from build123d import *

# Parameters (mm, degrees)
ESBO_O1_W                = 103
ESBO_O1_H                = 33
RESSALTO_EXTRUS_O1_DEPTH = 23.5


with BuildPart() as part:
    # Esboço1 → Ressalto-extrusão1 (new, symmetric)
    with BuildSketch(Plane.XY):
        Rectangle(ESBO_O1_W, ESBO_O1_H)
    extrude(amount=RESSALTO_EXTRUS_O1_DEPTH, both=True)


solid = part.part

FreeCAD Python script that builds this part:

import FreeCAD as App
import Part
import Sketcher

V = App.Vector
Q = App.Units.Quantity


def add_polygon(sketch, points):
    """Adds a closed chain of lines whose ends are joined by coincident constraints."""
    first, n = sketch.GeometryCount, len(points)
    for a, b in zip(points, points[1:] + points[:1]):
        sketch.addGeometry(Part.LineSegment(App.Vector(*a, 0), App.Vector(*b, 0)), False)
    for i in range(n):
        sketch.addConstraint(Sketcher.Constraint("Coincident", first + i, 2, first + (i + 1) % n, 1))

doc = App.newDocument("Part")
params = doc.addObject("Spreadsheet::Sheet", "Params")
for row, (alias, value) in enumerate([
    ("sketch1_width", "103 mm"),
    ("sketch1_height", "33 mm"),
    ("pad1_length", "47 mm"),
], start=1):
    params.set(f"A{row}", alias)
    params.set(f"B{row}", "=" + value)
    params.setAlias(f"B{row}", alias)

body = doc.addObject("PartDesign::Body", "Body")

# Sketch on XY plane
sketch1 = body.newObject("Sketcher::SketchObject", "Sketch")
sketch1.AttachmentSupport = (doc.getObject("XY_Plane"), [""])
sketch1.MapMode = "FlatFace"
add_polygon(sketch1, [(-51.5, 16.5), (-51.5, -16.5), (51.5, -16.5), (51.5, 16.5)])  # lines 0-3
sketch1.addConstraint(Sketcher.Constraint("Vertical", 0))
sketch1.addConstraint(Sketcher.Constraint("Horizontal", 1))
sketch1.addConstraint(Sketcher.Constraint("Vertical", 2))
sketch1.addConstraint(Sketcher.Constraint("Horizontal", 3))
sketch1.addConstraint(Sketcher.Constraint("Symmetric", 0, 2, 2, 2, -1, 1))
sketch1.addConstraint(Sketcher.Constraint("DistanceX", 1, 1, 1, 2, Q("103 mm")))
sketch1.addConstraint(Sketcher.Constraint("DistanceY", 0, 2, 0, 1, Q("33 mm")))
sketch1.setExpression("Constraints[9]", "Params.sketch1_width")
sketch1.setExpression("Constraints[10]", "Params.sketch1_height")
pad1 = body.newObject("PartDesign::Pad", "Pad")
pad1.Profile = sketch1
pad1.setExpression("Length", "Params.pad1_length")
pad1.Midplane = True

doc.recompute()
